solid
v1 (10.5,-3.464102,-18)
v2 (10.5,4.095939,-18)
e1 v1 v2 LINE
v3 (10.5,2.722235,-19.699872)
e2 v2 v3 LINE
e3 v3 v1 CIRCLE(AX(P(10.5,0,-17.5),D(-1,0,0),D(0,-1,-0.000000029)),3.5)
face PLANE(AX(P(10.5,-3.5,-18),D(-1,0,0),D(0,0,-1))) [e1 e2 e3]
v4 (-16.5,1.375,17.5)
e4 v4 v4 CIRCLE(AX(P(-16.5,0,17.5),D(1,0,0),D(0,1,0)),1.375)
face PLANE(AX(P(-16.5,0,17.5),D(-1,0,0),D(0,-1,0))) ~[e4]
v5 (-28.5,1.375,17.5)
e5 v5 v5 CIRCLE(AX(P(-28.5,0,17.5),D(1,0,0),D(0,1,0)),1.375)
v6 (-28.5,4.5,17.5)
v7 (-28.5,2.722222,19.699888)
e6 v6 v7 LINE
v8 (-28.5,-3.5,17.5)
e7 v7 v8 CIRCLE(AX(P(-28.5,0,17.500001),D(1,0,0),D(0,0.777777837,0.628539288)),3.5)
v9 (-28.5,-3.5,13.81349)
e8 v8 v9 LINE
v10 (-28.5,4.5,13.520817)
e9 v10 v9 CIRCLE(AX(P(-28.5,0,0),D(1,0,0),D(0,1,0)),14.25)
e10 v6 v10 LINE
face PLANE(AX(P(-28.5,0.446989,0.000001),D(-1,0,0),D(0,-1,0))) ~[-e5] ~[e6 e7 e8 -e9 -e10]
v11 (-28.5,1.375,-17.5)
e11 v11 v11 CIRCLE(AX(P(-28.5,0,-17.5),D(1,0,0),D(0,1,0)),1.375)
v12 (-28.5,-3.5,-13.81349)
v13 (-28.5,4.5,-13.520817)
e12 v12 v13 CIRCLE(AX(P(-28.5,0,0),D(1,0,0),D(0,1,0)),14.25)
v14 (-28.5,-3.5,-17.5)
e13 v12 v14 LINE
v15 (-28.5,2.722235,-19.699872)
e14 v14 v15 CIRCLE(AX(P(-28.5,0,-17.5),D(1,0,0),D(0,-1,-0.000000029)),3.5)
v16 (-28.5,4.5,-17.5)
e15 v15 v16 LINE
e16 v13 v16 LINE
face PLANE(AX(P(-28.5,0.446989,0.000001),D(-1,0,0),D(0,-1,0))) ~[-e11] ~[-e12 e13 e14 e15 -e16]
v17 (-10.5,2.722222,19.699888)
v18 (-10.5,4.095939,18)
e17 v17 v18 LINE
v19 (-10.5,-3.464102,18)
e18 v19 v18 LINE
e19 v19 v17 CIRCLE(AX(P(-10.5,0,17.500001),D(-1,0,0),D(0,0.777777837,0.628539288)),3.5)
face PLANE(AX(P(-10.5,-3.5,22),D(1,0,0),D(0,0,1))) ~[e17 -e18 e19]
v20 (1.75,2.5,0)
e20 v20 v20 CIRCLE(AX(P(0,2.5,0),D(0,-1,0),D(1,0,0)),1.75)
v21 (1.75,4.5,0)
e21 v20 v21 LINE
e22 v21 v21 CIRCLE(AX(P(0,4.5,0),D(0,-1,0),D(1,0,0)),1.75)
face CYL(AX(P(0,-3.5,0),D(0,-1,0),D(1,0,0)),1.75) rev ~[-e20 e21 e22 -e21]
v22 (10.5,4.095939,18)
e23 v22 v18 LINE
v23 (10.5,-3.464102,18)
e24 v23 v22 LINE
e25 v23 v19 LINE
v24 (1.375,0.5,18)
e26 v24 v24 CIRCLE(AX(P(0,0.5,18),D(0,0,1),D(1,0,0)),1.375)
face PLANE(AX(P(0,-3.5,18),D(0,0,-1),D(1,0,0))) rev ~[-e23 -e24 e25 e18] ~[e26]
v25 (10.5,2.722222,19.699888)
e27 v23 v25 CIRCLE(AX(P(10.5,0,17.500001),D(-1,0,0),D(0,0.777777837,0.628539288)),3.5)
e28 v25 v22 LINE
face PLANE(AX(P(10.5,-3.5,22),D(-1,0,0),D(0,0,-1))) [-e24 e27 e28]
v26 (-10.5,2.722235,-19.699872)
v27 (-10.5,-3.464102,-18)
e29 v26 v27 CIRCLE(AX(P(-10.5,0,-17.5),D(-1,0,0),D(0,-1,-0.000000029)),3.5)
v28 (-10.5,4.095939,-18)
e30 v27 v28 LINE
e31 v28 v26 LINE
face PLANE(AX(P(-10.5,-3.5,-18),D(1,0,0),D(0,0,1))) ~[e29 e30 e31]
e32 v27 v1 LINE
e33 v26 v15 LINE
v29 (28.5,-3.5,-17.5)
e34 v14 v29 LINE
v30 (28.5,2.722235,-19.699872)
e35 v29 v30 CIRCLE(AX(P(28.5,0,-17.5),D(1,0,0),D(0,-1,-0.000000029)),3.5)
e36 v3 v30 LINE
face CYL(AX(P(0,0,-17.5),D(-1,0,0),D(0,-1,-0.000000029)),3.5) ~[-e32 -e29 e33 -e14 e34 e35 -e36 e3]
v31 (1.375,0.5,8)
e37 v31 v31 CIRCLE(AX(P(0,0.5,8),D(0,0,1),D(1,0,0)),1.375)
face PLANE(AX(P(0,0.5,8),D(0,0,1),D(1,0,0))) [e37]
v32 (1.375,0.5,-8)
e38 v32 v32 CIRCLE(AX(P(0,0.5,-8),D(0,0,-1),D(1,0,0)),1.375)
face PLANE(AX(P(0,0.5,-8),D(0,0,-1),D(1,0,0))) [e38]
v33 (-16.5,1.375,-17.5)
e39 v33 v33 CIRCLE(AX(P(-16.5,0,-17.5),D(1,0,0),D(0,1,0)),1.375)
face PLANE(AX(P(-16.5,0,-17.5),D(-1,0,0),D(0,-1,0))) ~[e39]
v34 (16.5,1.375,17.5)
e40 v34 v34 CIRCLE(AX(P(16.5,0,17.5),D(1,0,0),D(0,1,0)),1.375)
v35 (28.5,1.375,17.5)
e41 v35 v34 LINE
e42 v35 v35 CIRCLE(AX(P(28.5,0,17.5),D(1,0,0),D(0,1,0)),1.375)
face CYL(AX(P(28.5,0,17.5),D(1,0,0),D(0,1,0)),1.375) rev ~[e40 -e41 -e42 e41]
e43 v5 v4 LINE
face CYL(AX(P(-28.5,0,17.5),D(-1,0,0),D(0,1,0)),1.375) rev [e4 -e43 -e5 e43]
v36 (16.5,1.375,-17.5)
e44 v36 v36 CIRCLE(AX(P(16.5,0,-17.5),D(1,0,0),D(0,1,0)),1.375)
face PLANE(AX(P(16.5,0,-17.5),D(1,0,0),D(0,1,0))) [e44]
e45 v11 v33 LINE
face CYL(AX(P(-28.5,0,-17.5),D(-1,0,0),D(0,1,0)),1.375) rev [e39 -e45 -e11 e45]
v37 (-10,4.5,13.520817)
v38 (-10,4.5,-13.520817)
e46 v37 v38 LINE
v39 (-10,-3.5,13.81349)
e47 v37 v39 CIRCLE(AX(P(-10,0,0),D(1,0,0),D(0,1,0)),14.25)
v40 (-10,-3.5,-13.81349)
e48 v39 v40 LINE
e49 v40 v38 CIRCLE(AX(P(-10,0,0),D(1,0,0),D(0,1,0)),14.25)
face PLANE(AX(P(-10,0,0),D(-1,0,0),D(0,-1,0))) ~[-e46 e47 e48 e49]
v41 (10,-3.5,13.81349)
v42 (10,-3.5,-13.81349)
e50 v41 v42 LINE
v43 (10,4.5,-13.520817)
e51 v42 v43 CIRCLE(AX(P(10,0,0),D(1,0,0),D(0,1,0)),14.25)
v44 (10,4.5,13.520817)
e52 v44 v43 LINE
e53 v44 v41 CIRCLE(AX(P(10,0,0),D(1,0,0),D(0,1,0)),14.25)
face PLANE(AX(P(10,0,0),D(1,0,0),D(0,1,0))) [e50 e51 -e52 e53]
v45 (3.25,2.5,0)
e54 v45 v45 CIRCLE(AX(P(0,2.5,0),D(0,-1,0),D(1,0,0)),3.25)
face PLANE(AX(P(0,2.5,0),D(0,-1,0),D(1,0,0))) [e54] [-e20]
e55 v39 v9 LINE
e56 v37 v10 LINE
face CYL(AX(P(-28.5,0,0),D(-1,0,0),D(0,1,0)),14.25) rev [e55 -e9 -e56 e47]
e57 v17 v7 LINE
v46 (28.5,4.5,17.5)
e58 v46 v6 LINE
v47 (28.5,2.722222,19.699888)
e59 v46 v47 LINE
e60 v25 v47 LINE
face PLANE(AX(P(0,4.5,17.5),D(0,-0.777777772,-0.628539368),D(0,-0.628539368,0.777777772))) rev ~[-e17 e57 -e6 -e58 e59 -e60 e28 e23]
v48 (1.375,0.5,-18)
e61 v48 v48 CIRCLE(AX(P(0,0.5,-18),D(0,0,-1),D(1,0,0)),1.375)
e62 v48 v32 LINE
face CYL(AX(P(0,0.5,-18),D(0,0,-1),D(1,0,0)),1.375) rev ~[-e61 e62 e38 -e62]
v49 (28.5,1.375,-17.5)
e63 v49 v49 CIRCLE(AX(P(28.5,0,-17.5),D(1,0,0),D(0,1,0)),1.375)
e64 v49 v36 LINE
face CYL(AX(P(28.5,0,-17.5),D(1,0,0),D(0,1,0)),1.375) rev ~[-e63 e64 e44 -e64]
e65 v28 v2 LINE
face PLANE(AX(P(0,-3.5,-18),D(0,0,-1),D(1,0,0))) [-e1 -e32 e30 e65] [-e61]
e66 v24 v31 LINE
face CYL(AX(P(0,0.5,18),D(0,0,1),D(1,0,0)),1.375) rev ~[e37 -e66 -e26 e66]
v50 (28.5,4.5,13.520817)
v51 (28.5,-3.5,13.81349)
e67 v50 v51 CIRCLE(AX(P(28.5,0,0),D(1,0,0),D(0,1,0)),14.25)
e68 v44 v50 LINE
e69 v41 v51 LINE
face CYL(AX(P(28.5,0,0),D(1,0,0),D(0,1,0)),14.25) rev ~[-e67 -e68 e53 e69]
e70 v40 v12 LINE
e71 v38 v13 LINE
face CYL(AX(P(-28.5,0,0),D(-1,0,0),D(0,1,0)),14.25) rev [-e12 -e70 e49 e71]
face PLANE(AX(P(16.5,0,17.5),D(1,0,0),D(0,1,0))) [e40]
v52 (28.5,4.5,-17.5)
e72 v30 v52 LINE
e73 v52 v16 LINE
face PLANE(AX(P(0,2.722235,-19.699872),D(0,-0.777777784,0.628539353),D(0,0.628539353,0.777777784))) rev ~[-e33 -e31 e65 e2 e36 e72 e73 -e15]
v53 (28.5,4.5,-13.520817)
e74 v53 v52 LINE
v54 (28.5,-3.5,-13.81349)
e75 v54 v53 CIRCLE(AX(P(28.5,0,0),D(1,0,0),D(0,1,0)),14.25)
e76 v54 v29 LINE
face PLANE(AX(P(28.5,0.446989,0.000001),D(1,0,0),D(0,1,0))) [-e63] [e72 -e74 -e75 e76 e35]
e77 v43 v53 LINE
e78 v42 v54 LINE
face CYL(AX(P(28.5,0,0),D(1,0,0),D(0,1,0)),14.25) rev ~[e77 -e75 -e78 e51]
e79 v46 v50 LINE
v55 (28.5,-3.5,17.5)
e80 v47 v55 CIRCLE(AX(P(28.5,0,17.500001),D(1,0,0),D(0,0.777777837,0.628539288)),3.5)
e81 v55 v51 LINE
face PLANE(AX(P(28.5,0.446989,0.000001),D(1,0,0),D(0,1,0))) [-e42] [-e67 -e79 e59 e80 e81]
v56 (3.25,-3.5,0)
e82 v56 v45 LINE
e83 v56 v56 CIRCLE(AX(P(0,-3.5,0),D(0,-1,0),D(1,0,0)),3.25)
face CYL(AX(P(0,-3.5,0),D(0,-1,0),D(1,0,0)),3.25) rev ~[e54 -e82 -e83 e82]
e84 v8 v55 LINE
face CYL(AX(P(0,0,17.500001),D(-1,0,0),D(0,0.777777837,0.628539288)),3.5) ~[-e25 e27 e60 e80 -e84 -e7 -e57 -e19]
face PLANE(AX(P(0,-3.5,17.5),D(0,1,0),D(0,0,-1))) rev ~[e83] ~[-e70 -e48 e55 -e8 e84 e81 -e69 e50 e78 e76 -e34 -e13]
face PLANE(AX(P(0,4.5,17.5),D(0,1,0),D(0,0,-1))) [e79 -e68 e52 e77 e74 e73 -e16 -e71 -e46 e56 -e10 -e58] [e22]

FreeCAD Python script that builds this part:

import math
import FreeCAD as App
import Part
import Sketcher


def add_polygon(sketch, points):
    """Adds a closed chain of lines whose ends are joined by coincident constraints."""
    first, n = sketch.GeometryCount, len(points)
    for a, b in zip(points, points[1:] + points[:1]):
        sketch.addGeometry(Part.LineSegment(App.Vector(*a, 0), App.Vector(*b, 0)), False)
    for i in range(n):
        sketch.addConstraint(Sketcher.Constraint("Coincident", first + i, 2, first + (i + 1) % n, 1))

doc = App.newDocument("Part")
body = doc.addObject("PartDesign::Body", "Body")

# Sketch on YZ plane
sketch1 = body.newObject("Sketcher::SketchObject", "Sketch")
sketch1.AttachmentSupport = (doc.getObject("YZ_Plane"), [""])
sketch1.MapMode = "FlatFace"
sketch1.addGeometry(Part.ArcOfCircle(Part.Circle(App.Vector(0, 17.500001, 0), App.Vector(0, 0, 1), 3.5), math.radians(38.942436), math.radians(180.000011)), False)
sketch1.addGeometry(Part.LineSegment(App.Vector(-3.5, 17.5, 0), App.Vector(-3.5, -17.5, 0)), False)
sketch1.addGeometry(Part.ArcOfCircle(Part.Circle(App.Vector(0, -17.5, 0), App.Vector(0, 0, 1), 3.5), math.radians(-179.999998), math.radians(-38.942111)), False)
sketch1.addGeometry(Part.LineSegment(App.Vector(2.722235, -19.699872, 0), App.Vector(4.5, -17.5, 0)), False)
sketch1.addGeometry(Part.LineSegment(App.Vector(4.5, -17.5, 0), App.Vector(4.5, 17.5, 0)), False)
sketch1.addGeometry(Part.LineSegment(App.Vector(4.5, 17.5, 0), App.Vector(2.722222, 19.699888, 0)), False)
sketch1.addConstraint(Sketcher.Constraint("Tangent", 0, 2, 1, 1))
sketch1.addConstraint(Sketcher.Constraint("Tangent", 1, 2, 2, 1))
sketch1.addConstraint(Sketcher.Constraint("Coincident", 2, 2, 3, 1))
sketch1.addConstraint(Sketcher.Constraint("Coincident", 3, 2, 4, 1))
sketch1.addConstraint(Sketcher.Constraint("Coincident", 4, 2, 5, 1))
sketch1.addConstraint(Sketcher.Constraint("Tangent", 5, 2, 0, 1))
sketch1.addConstraint(Sketcher.Constraint("Vertical", 1))
sketch1.addConstraint(Sketcher.Constraint("Vertical", 4))
sketch1.addConstraint(Sketcher.Constraint("Equal", 0, 2))
sketch1.addConstraint(Sketcher.Constraint("Symmetric", 0, 3, 2, 3, -1, 1))
sketch1.addConstraint(Sketcher.Constraint("Horizontal", 1, 2, 3, 2))
sketch1.addConstraint(Sketcher.Constraint("Horizontal", 0, 2, 4, 2))
sketch1.addConstraint(Sketcher.Constraint("Radius", 0, 3.5))
sketch1.addConstraint(Sketcher.Constraint("DistanceY", 1, 2, 1, 1, 35.0))
sketch1.addConstraint(Sketcher.Constraint("DistanceX", 1, 2, 3, 2, 8.0))
sketch1.addConstraint(Sketcher.Constraint("DistanceY", 2, 2, -1, 1, 19.699872))
pad1 = body.newObject("PartDesign::Pad", "Pad")
pad1.Profile = sketch1
pad1.Length = 28.5

# Sketch on YZ plane
sketch2 = body.newObject("Sketcher::SketchObject", "Sketch001")
sketch2.AttachmentSupport = (doc.getObject("YZ_Plane"), [""])
sketch2.MapMode = "FlatFace"
sketch2.AttachmentOffset = App.Placement(App.Vector(0, 0, 28.5), App.Rotation())
sketch2.addGeometry(Part.Circle(App.Vector(0, 0, 0), App.Vector(0, 0, 1), 14.25), False)
sketch2.addConstraint(Sketcher.Constraint("Coincident", 0, 3, -1, 1))
sketch2.addConstraint(Sketcher.Constraint("Diameter", 0, 28.5))
pocket1 = body.newObject("PartDesign::Pocket", "Pocket")
pocket1.Profile = sketch2
pocket1.Length = 18.5

# Sketch on YZ plane
sketch3 = body.newObject("Sketcher::SketchObject", "Sketch002")
sketch3.AttachmentSupport = (doc.getObject("YZ_Plane"), [""])
sketch3.MapMode = "FlatFace"
sketch3.AttachmentOffset = App.Placement(App.Vector(0, 0, 28.5), App.Rotation())
sketch3.addGeometry(Part.Circle(App.Vector(0, -17.5, 0), App.Vector(0, 0, 1), 1.375), False)
sketch3.addGeometry(Part.Circle(App.Vector(0, 17.5, 0), App.Vector(0, 0, 1), 1.375), False)
sketch3.addConstraint(Sketcher.Constraint("Equal", 0, 1))
sketch3.addConstraint(Sketcher.Constraint("Symmetric", 0, 3, 1, 3, -1, 1))
sketch3.addConstraint(Sketcher.Constraint("PointOnObject", 0, 3, -2))
sketch3.addConstraint(Sketcher.Constraint("Diameter", 0, 2.75))
sketch3.addConstraint(Sketcher.Constraint("DistanceY", 0, 3, 1, 3, 35.0))
pocket2 = body.newObject("PartDesign::Pocket", "Pocket001")
pocket2.Profile = sketch3
pocket2.Length = 12

# Sketch on XZ plane
sketch4 = body.newObject("Sketcher::SketchObject", "Sketch003")
sketch4.AttachmentSupport = (doc.getObject("XZ_Plane"), [""])
sketch4.MapMode = "FlatFace"
sketch4.AttachmentOffset = App.Placement(App.Vector(0, 0, 3.5), App.Rotation())
add_polygon(sketch4, [(10.5, 22), (0, 22), (0, 18), (10.5, 18)])  # lines 0-3
add_polygon(sketch4, [(10.5, -18), (0, -18), (0, -22), (10.5, -22)])  # lines 4-7
sketch4.addConstraint(Sketcher.Constraint("Horizontal", 0))
sketch4.addConstraint(Sketcher.Constraint("Vertical", 1))
sketch4.addConstraint(Sketcher.Constraint("Horizontal", 2))
sketch4.addConstraint(Sketcher.Constraint("Vertical", 3))
sketch4.addConstraint(Sketcher.Constraint("Horizontal", 4))
sketch4.addConstraint(Sketcher.Constraint("Vertical", 5))
sketch4.addConstraint(Sketcher.Constraint("Horizontal", 6))
sketch4.addConstraint(Sketcher.Constraint("Vertical", 7))
sketch4.addConstraint(Sketcher.Constraint("Symmetric", 1, 2, 4, 2, -1, 1))
sketch4.addConstraint(Sketcher.Constraint("Symmetric", 0, 2, 5, 2, -1))
sketch4.addConstraint(Sketcher.Constraint("Vertical", 3, 2, 6, 2))
sketch4.addConstraint(Sketcher.Constraint("DistanceY", 1, 2, 1, 1, 4.0))
sketch4.addConstraint(Sketcher.Constraint("DistanceX", 0, 2, 0, 1, 10.5))
sketch4.addConstraint(Sketcher.Constraint("DistanceY", -1, 1, 0, 2, 22.0))
pocket3 = body.newObject("PartDesign::Pocket", "Pocket002")
pocket3.Profile = sketch4
pocket3.Length = 8
body2 = doc.addObject("PartDesign::Body", "Body001")
doc.recompute()

mirroring = doc.addObject("Part::Mirroring", "Mirroring")
mirroring.Source = body
mirroring.Base = App.Vector(0, 0, 0)
mirroring.Normal = App.Vector(1, 0, 0)
body2.BaseFeature = mirroring
doc.recompute()

boolean = body2.newObject("PartDesign::Boolean", "Boolean")
boolean.Type = "Fuse"
boolean.addObjects([body])

# Sketch on XZ plane
sketch5 = body2.newObject("Sketcher::SketchObject", "Sketch004")
sketch5.AttachmentSupport = (doc.getObject("XZ_Plane001"), [""])
sketch5.MapMode = "FlatFace"
sketch5.AttachmentOffset = App.Placement(App.Vector(0, 0, 3.5), App.Rotation())
sketch5.addGeometry(Part.Circle(App.Vector(0, 0, 0), App.Vector(0, 0, 1), 1.75), False)
sketch5.addConstraint(Sketcher.Constraint("Coincident", 0, 3, -1, 1))
sketch5.addConstraint(Sketcher.Constraint("Diameter", 0, 3.5))
pocket4 = body2.newObject("PartDesign::Pocket", "Pocket003")
pocket4.Profile = sketch5
pocket4.Length = 8

# Sketch on XZ plane
sketch6 = body2.newObject("Sketcher::SketchObject", "Sketch005")
sketch6.AttachmentSupport = (doc.getObject("XZ_Plane001"), [""])
sketch6.MapMode = "FlatFace"
sketch6.AttachmentOffset = App.Placement(App.Vector(0, 0, 3.5), App.Rotation())
sketch6.addGeometry(Part.Circle(App.Vector(0, 0, 0), App.Vector(0, 0, 1), 3.25), False)
sketch6.addConstraint(Sketcher.Constraint("Coincident", 0, 3, -1, 1))
sketch6.addConstraint(Sketcher.Constraint("Diameter", 0, 6.5))
pocket5 = body2.newObject("PartDesign::Pocket", "Pocket004")
pocket5.Profile = sketch6
pocket5.Length = 6

# Sketch on XY plane
sketch7 = body2.newObject("Sketcher::SketchObject", "Sketch006")
sketch7.AttachmentSupport = (doc.getObject("XY_Plane001"), [""])
sketch7.MapMode = "FlatFace"
sketch7.AttachmentOffset = App.Placement(App.Vector(0, 0, 18), App.Rotation())
sketch7.addGeometry(Part.Circle(App.Vector(0, 0.5, 0), App.Vector(0, 0, 1), 1.375), False)
sketch7.addConstraint(Sketcher.Constraint("PointOnObject", 0, 3, -2))
sketch7.addConstraint(Sketcher.Constraint("Diameter", 0, 2.75))
sketch7.addConstraint(Sketcher.Constraint("DistanceY", -1, 1, 0, 3, 0.5))
pocket6 = body2.newObject("PartDesign::Pocket", "Pocket005")
pocket6.Profile = sketch7
pocket6.Length = 10

# Sketch on XY plane
sketch8 = body2.newObject("Sketcher::SketchObject", "Sketch007")
sketch8.AttachmentSupport = (doc.getObject("XY_Plane001"), [""])
sketch8.MapMode = "FlatFace"
sketch8.AttachmentOffset = App.Placement(App.Vector(0, 0, -18), App.Rotation())
sketch8.addGeometry(Part.Circle(App.Vector(0, 0.5, 0), App.Vector(0, 0, 1), 1.375), False)
sketch8.addConstraint(Sketcher.Constraint("PointOnObject", 0, 3, -2))
sketch8.addConstraint(Sketcher.Constraint("Diameter", 0, 2.75))
sketch8.addConstraint(Sketcher.Constraint("DistanceY", -1, 1, 0, 3, 0.5))
pocket7 = body2.newObject("PartDesign::Pocket", "Pocket006")
pocket7.Profile = sketch8
pocket7.Length = 10
pocket7.Reversed = True
mirroring.Visibility = False

doc.recompute()
